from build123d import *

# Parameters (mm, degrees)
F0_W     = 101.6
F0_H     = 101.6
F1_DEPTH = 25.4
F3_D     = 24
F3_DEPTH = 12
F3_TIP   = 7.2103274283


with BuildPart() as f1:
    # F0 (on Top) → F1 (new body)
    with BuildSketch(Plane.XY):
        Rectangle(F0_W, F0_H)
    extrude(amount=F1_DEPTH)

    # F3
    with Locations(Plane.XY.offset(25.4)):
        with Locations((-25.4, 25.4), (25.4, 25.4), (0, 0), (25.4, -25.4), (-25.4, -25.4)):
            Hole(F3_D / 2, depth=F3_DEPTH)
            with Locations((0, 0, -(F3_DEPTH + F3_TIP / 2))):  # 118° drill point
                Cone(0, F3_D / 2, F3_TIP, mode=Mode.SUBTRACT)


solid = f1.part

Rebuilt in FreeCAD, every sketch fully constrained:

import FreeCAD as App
import Part
import Sketcher
Q = App.Units.Quantity


def add_polygon(sketch, points):
    """Adds a closed chain of lines whose ends are joined by coincident constraints."""
    first, n = sketch.GeometryCount, len(points)
    for a, b in zip(points, points[1:] + points[:1]):
        sketch.addGeometry(Part.LineSegment(App.Vector(*a, 0), App.Vector(*b, 0)), False)
    for i in range(n):
        sketch.addConstraint(Sketcher.Constraint("Coincident", first + i, 2, first + (i + 1) % n, 1))

doc = App.newDocument("Part")
params = doc.addObject("Spreadsheet::Sheet", "Params")
for row, (alias, value) in enumerate([
    ("sketch1_width", "101.6 mm"),
    ("pad1_length", "25.4 mm"),
    ("sketch2_diameter", "24 mm"),
    ("hole_diameter", "24 mm"),
    ("hole_depth", "12 mm"),
], start=1):
    params.set(f"A{row}", alias)
    params.set(f"B{row}", "=" + value)
    params.setAlias(f"B{row}", alias)

body = doc.addObject("PartDesign::Body", "Body")

# Sketch on XY plane
sketch1 = doc.addObject("Sketcher::SketchObject", "Sketch")
body.addObject(sketch1)
sketch1.AttachmentSupport = (doc.XY_Plane, [""])
sketch1.MapMode = "FlatFace"
add_polygon(sketch1, [(-51, 51), (-51, -51), (51, -51), (51, 51)])  # lines 0-3
sketch1.addConstraint([
    Sketcher.Constraint("Vertical", 0),
    Sketcher.Constraint("Horizontal", 1),
    Sketcher.Constraint("Vertical", 2),
    Sketcher.Constraint("Horizontal", 3),
    Sketcher.Constraint("Symmetric", 0, 2, 2, 2, -1, 1),
    Sketcher.Constraint("Equal", 3, 0),
    Sketcher.Constraint("DistanceX", 1, 1, 1, 2, Q("101.6 mm")),
])
sketch1.setExpression("Constraints[10]", "Params.sketch1_width")
pad1 = doc.addObject("PartDesign::Pad", "Pad")
body.addObject(pad1)
pad1.Profile = sketch1
pad1.setExpression("Length", "Params.pad1_length")

# Sketch on XY plane
sketch2 = doc.addObject("Sketcher::SketchObject", "Sketch001")
body.addObject(sketch2)
sketch2.AttachmentSupport = (doc.XY_Plane, [""])
sketch2.MapMode = "FlatFace"
sketch2.AttachmentOffset = App.Placement(App.Vector(0, 0, 25.4), App.Rotation())
sketch2.addGeometry([
    Part.Circle(App.Vector(-25, 25, 0), App.Vector(0, 0, 1), 12),  # 0
    Part.Circle(App.Vector(25, 25, 0), App.Vector(0, 0, 1), 12),  # 1
    Part.Circle(App.Vector(0, 0, 0), App.Vector(0, 0, 1), 12),  # 2
    Part.Circle(App.Vector(25, -25, 0), App.Vector(0, 0, 1), 12),  # 3
    Part.Circle(App.Vector(-25, -25, 0), App.Vector(0, 0, 1), 12),  # 4
], False)
sketch2.addConstraint([
    Sketcher.Constraint("Coincident", 2, 3, -1, 1),
    Sketcher.Constraint("Equal", 0, 1),
    Sketcher.Constraint("Equal", 1, 2),
    Sketcher.Constraint("Equal", 2, 3),
    Sketcher.Constraint("Equal", 3, 4),
    Sketcher.Constraint("Symmetric", 0, 3, 3, 3, -1, 1),
    Sketcher.Constraint("Symmetric", 1, 3, 4, 3, -1, 1),
    Sketcher.Constraint("Symmetric", 0, 3, 1, 3, -2),
    Sketcher.Constraint("Diameter", 0, Q("24 mm")),
    Sketcher.Constraint("DistanceX", 0, 3, -1, 1, Q("25.4 mm")),
    Sketcher.Constraint("DistanceY", -1, 1, 0, 3, Q("25.4 mm")),
])
sketch2.setExpression("Constraints[8]", "Params.sketch2_diameter")
doc.recompute()
hole = doc.addObject("PartDesign::Hole", "Hole")
body.addObject(hole)
hole.Profile = sketch2
hole.ThreadType = "None"
hole.setExpression("Diameter", "Params.hole_diameter")
hole.DepthType = "Dimension"
hole.setExpression("Depth", "Params.hole_depth")
hole.DrillPoint = "Angled"
hole.DrillPointAngle = 118

doc.recompute()
